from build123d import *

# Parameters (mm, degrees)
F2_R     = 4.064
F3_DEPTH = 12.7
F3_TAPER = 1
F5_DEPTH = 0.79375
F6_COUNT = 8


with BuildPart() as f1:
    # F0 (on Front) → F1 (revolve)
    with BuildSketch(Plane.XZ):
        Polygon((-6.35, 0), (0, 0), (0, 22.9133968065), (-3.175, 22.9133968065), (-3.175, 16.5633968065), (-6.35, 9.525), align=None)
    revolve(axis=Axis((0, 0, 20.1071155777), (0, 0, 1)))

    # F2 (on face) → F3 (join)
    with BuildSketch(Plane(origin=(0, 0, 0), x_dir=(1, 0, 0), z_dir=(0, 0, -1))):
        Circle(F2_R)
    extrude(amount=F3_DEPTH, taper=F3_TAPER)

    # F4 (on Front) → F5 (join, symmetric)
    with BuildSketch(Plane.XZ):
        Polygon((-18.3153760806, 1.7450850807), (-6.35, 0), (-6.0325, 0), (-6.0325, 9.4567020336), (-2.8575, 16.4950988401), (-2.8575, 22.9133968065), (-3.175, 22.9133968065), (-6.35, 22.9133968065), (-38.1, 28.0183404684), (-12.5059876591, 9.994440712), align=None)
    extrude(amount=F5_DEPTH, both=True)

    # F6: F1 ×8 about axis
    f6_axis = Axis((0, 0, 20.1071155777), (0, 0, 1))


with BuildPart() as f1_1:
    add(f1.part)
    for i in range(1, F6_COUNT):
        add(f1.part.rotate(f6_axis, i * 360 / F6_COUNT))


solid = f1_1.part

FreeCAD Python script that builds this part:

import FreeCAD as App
import Part
import Sketcher
Q = App.Units.Quantity


def add_polygon(sketch, points):
    """Adds a closed chain of lines whose ends are joined by coincident constraints."""
    first, n = sketch.GeometryCount, len(points)
    for a, b in zip(points, points[1:] + points[:1]):
        sketch.addGeometry(Part.LineSegment(App.Vector(*a, 0), App.Vector(*b, 0)), False)
    for i in range(n):
        sketch.addConstraint(Sketcher.Constraint("Coincident", first + i, 2, first + (i + 1) % n, 1))

doc = App.newDocument("Part")
params = doc.addObject("Spreadsheet::Sheet", "Params")
for row, (alias, value) in enumerate([
    ("sketch1_width", "0.25 in"),
    ("sketch1_width2", "0.125 in"),
    ("sketch1_height", "0.375 in"),
    ("revolution_angle", "360 deg"),
    ("sketch2_diameter", "0.32 in"),
    ("pad1_length", "0.5 in"),
    ("pad1_taper", "-1 deg"),
    ("pad2_length", "0.0625 in"),
], start=1):
    params.set(f"A{row}", alias)
    params.set(f"B{row}", "=" + value)
    params.setAlias(f"B{row}", alias)

body = doc.addObject("PartDesign::Body", "Body")

# Sketch on XZ plane
sketch1 = body.newObject("Sketcher::SketchObject", "Sketch")
sketch1.AttachmentSupport = (doc.getObject("XZ_Plane"), [""])
sketch1.MapMode = "FlatFace"
add_polygon(sketch1, [(-6.3, 0), (0, 0), (0, 22.9), (-3.2, 22.9), (-3.2, 16.6), (-6.3, 9.5)])  # lines 0-5
sketch1.addConstraint([
    Sketcher.Constraint("Horizontal", 0),
    Sketcher.Constraint("Vertical", 1),
    Sketcher.Constraint("Horizontal", 2),
    Sketcher.Constraint("Vertical", 3),
    Sketcher.Constraint("Vertical", 5),
    Sketcher.Constraint("Coincident", 0, 2, -1, 1),
    Sketcher.Constraint("Equal", 0, 3),
    Sketcher.Constraint("DistanceX", 0, 1, 0, 2, Q("0.25 in")),
    Sketcher.Constraint("DistanceX", 2, 2, 2, 1, Q("0.125 in")),
    Sketcher.Constraint("DistanceY", 5, 2, 5, 1, Q("0.375 in")),
    Sketcher.Constraint("Angle", 4, Q("-114.279995 deg")),
])
sketch1.setExpression("Constraints[13]", "Params.sketch1_width")
sketch1.setExpression("Constraints[14]", "Params.sketch1_width2")
sketch1.setExpression("Constraints[15]", "Params.sketch1_height")
revolution = body.newObject("PartDesign::Revolution", "Revolution")
revolution.Profile = sketch1
revolution.ReferenceAxis = (sketch1, ["V_Axis"])
revolution.setExpression("Angle", "Params.revolution_angle")

# Sketch on XY plane
sketch2 = body.newObject("Sketcher::SketchObject", "Sketch001")
sketch2.AttachmentSupport = (doc.getObject("XY_Plane"), [""])
sketch2.MapMode = "FlatFace"
sketch2.addGeometry(Part.Circle(App.Vector(0, 0, 0), App.Vector(0, 0, 1), 4.1), False)
sketch2.addConstraint([
    Sketcher.Constraint("Coincident", 0, 3, -1, 1),
    Sketcher.Constraint("Diameter", 0, Q("0.32 in")),
])
sketch2.setExpression("Constraints[1]", "Params.sketch2_diameter")
pad1 = body.newObject("PartDesign::Pad", "Pad")
pad1.Profile = sketch2
pad1.setExpression("Length", "Params.pad1_length")
pad1.Reversed = True
pad1.setExpression("TaperAngle", "Params.pad1_taper")

# Sketch on XZ plane
sketch3 = body.newObject("Sketcher::SketchObject", "Sketch002")
sketch3.AttachmentSupport = (doc.getObject("XZ_Plane"), [""])
sketch3.MapMode = "FlatFace"
add_polygon(sketch3, [(-18.32, 1.75), (-6.35, 0), (-6.03, 0), (-6.03, 9.46), (-2.86, 16.5), (-2.86, 22.91), (-6.35, 22.91), (-38.1, 28.02), (-12.51, 9.99)])  # lines 0-8
sketch3.addConstraint([
    Sketcher.Constraint("Horizontal", 1),
    Sketcher.Constraint("Vertical", 2),
    Sketcher.Constraint("Vertical", 4),
    Sketcher.Constraint("Horizontal", 5),
    Sketcher.Constraint("PointOnObject", 0, 2, -1),
    Sketcher.Constraint("Perpendicular", 7, 8),
    Sketcher.Constraint("Vertical", 0, 2, 5, 2),
    Sketcher.Constraint("DistanceX", 6, 2, -1, 1, Q("1.5 in")),
    Sketcher.Constraint("DistanceX", 0, 2, -1, 1, Q("0.25 in")),
    Sketcher.Constraint("Angle", 3, Q("65.720005 deg")),
    Sketcher.Constraint("DistanceX", 1, 1, 1, 2, Q("0.0125 in")),
    Sketcher.Constraint("DistanceX", 5, 2, 5, 1, Q("0.1375 in")),
    Sketcher.Constraint("DistanceY", -1, 1, 3, 2, Q("16.495099 mm")),
    Sketcher.Constraint("Distance", 8, Q("10.089641 mm")),
    Sketcher.Constraint("DistanceY", 4, 1, 4, 2, Q("6.418298 mm")),
    Sketcher.Constraint("DistanceY", -1, 1, 6, 2, Q("28.01834 mm")),
    Sketcher.Constraint("DistanceY", -1, 1, 7, 2, Q("9.994441 mm")),
    Sketcher.Constraint("DistanceX", 8, 2, 7, 2, Q("5.809388 mm")),
])
pad2 = body.newObject("PartDesign::Pad", "Pad001")
pad2.Profile = sketch3
pad2.setExpression("Length", "Params.pad2_length")
pad2.Midplane = True
body2 = doc.addObject("PartDesign::Body", "Body001")
doc.recompute()

body2.BaseFeature = body
doc.recompute()

body3 = doc.addObject("PartDesign::Body", "Body002")
body3.BaseFeature = body
body3.Placement = App.Placement(App.Vector(0, 0, 0), App.Rotation(App.Vector(0, 0, 1), 45))
boolean = body2.newObject("PartDesign::Boolean", "Boolean")
boolean.Type = "Fuse"
boolean.addObjects([body3])
doc.recompute()

body4 = doc.addObject("PartDesign::Body", "Body003")
body4.BaseFeature = body
body4.Placement = App.Placement(App.Vector(0, 0, 0), App.Rotation(App.Vector(0, 0, 1), 90))
boolean2 = body2.newObject("PartDesign::Boolean", "Boolean001")
boolean2.Type = "Fuse"
boolean2.addObjects([body4])
doc.recompute()

body5 = doc.addObject("PartDesign::Body", "Body004")
body5.BaseFeature = body
body5.Placement = App.Placement(App.Vector(0, 0, 0), App.Rotation(App.Vector(0, 0, 1), 135))
boolean3 = body2.newObject("PartDesign::Boolean", "Boolean002")
boolean3.Type = "Fuse"
boolean3.addObjects([body5])
doc.recompute()

body6 = doc.addObject("PartDesign::Body", "Body005")
body6.BaseFeature = body
body6.Placement = App.Placement(App.Vector(0, 0, 0), App.Rotation(App.Vector(0, 0, 1), 180))
boolean4 = body2.newObject("PartDesign::Boolean", "Boolean003")
boolean4.Type = "Fuse"
boolean4.addObjects([body6])
doc.recompute()

body7 = doc.addObject("PartDesign::Body", "Body006")
body7.BaseFeature = body
body7.Placement = App.Placement(App.Vector(0, 0, 0), App.Rotation(App.Vector(0, 0, 1), 225))
boolean5 = body2.newObject("PartDesign::Boolean", "Boolean004")
boolean5.Type = "Fuse"
boolean5.addObjects([body7])
doc.recompute()

body8 = doc.addObject("PartDesign::Body", "Body007")
body8.BaseFeature = body
body8.Placement = App.Placement(App.Vector(0, 0, 0), App.Rotation(App.Vector(0, 0, 1), 270))
boolean6 = body2.newObject("PartDesign::Boolean", "Boolean005")
boolean6.Type = "Fuse"
boolean6.addObjects([body8])
doc.recompute()

body.Placement = App.Placement(App.Vector(0, 0, 0), App.Rotation(App.Vector(0, 0, 1), 315))
boolean7 = body2.newObject("PartDesign::Boolean", "Boolean006")
boolean7.Type = "Fuse"
boolean7.addObjects([body])

doc.recompute()
